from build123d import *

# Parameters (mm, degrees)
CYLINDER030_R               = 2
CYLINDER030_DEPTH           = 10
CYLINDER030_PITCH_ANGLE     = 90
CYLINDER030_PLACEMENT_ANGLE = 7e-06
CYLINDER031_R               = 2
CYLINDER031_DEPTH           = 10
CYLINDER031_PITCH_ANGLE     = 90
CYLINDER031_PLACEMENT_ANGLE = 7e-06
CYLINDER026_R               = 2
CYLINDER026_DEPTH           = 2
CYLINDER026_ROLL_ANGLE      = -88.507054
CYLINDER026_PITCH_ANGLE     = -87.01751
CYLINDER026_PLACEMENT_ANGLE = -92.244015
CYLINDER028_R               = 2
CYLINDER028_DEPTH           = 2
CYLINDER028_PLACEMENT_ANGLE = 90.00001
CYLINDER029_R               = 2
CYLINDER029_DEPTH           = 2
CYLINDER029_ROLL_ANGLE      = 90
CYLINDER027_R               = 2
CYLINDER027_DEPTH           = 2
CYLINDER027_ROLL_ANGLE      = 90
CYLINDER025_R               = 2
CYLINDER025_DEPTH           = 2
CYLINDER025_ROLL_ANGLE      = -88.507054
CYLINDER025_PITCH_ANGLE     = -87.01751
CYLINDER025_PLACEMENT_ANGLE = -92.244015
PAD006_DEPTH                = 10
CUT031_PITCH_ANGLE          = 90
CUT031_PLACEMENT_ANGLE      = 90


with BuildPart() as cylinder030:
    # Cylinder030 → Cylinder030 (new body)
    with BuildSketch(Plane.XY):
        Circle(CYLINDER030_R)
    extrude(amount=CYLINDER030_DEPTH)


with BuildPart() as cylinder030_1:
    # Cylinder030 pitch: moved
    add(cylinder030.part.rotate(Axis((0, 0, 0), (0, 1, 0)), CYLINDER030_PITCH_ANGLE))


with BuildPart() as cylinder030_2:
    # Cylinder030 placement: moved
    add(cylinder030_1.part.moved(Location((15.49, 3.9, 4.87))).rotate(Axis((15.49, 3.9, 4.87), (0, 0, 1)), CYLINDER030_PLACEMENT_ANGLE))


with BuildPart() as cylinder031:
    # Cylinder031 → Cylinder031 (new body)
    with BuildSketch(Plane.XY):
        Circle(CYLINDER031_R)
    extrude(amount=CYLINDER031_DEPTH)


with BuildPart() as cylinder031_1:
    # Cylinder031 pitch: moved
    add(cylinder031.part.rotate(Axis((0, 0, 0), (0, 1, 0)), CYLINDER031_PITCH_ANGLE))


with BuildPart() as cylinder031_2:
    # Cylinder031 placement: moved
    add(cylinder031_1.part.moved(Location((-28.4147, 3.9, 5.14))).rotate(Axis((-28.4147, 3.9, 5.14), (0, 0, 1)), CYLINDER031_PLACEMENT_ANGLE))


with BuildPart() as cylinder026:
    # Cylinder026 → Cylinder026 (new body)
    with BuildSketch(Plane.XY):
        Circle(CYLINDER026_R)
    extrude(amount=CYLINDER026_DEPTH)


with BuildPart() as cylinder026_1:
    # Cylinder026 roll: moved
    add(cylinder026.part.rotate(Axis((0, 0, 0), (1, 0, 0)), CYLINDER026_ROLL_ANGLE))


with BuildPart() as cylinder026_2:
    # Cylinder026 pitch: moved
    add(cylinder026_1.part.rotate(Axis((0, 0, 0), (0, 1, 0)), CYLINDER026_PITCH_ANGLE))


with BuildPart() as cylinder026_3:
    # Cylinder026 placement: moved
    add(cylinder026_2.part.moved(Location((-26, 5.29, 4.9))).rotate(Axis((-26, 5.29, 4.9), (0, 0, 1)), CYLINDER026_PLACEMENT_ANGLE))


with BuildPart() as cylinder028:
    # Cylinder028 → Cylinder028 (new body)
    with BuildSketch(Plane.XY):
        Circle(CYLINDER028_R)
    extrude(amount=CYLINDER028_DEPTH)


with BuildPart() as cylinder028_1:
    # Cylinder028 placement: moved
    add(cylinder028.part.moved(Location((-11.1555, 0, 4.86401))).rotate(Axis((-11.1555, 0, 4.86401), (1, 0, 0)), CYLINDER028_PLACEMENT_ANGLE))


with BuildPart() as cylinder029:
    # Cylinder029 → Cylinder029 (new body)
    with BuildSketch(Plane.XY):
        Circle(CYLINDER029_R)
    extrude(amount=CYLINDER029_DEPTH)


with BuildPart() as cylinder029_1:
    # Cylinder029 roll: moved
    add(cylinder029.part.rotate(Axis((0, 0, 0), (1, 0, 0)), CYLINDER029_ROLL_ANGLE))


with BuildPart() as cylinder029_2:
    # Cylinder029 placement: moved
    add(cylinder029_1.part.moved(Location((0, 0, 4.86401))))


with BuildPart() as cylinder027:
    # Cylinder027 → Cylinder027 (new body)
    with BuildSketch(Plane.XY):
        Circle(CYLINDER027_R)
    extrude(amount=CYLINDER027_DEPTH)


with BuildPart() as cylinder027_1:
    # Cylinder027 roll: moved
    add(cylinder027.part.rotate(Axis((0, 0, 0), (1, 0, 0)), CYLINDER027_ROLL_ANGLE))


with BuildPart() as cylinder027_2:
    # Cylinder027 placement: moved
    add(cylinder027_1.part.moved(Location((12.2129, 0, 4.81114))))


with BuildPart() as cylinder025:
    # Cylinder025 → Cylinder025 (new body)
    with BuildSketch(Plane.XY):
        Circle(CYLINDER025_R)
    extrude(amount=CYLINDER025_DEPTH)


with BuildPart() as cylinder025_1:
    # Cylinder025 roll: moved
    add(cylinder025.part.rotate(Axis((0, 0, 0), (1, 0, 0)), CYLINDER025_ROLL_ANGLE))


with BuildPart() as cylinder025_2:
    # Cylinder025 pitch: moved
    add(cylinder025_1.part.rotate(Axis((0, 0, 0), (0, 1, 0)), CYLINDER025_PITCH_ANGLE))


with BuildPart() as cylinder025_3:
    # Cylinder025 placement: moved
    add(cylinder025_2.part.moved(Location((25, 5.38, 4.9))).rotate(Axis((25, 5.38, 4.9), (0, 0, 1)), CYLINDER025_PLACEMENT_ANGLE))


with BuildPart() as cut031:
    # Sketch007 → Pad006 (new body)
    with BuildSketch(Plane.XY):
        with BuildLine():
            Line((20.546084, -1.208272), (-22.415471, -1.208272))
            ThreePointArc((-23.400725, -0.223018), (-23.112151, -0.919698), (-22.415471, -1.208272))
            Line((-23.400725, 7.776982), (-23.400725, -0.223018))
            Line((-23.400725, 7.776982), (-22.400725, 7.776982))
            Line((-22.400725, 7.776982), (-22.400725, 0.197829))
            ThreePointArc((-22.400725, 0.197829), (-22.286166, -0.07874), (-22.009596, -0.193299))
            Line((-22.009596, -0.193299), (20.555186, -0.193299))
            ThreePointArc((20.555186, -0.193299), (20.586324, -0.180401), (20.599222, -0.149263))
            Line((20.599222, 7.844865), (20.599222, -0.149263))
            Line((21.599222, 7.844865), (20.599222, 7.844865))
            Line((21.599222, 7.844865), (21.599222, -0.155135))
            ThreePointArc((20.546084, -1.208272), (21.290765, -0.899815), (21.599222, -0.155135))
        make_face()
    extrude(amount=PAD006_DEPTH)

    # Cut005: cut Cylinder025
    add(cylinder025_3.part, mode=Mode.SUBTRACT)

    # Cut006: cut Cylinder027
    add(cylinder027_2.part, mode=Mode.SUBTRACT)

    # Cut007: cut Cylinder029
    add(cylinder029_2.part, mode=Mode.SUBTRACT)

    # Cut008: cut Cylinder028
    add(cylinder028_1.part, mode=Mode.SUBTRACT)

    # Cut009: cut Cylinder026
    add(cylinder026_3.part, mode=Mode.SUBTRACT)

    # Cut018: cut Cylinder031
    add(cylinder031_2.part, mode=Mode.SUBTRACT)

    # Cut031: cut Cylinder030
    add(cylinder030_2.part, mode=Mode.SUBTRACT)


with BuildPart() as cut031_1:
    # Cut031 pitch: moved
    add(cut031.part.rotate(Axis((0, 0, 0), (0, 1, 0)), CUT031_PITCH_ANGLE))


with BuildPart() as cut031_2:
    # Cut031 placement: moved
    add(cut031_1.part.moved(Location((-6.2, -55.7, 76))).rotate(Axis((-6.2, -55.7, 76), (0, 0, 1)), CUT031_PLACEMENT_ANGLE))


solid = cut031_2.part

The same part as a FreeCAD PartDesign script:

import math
import FreeCAD as App
import Part
import Sketcher
Q = App.Units.Quantity

doc = App.newDocument("Part")
params = doc.addObject("Spreadsheet::Sheet", "Params")
for row, (alias, value) in enumerate([
    ("sketch1_diameter", "4 mm"),
    ("pad1_length", "10 mm"),
    ("sketch2_diameter", "4 mm"),
    ("pad2_length", "10 mm"),
    ("sketch3_diameter", "4 mm"),
    ("pad3_length", "2 mm"),
    ("sketch4_diameter", "4 mm"),
    ("pad4_length", "2 mm"),
    ("sketch5_diameter", "4 mm"),
    ("pad5_length", "2 mm"),
    ("sketch6_diameter", "4 mm"),
    ("pad6_length", "2 mm"),
    ("sketch7_diameter", "4 mm"),
    ("pad7_length", "2 mm"),
    ("sketch8_width", "1 mm"),
    ("sketch8_height", "8 mm"),
    ("pad8_length", "10 mm"),
], start=1):
    params.set(f"A{row}", alias)
    params.set(f"B{row}", "=" + value)
    params.setAlias(f"B{row}", alias)

body = doc.addObject("PartDesign::Body", "Body")

# Sketch on XY plane
sketch1 = doc.addObject("Sketcher::SketchObject", "Sketch")
body.addObject(sketch1)
sketch1.AttachmentSupport = (doc.XY_Plane, [""])
sketch1.MapMode = "FlatFace"
sketch1.addGeometry(Part.Circle(App.Vector(0, 0, 0), App.Vector(0, 0, 1), 2), False)
sketch1.addConstraint([
    Sketcher.Constraint("Coincident", 0, 3, -1, 1),
    Sketcher.Constraint("Diameter", 0, Q("4 mm")),
])
sketch1.setExpression("Constraints[1]", "Params.sketch1_diameter")
pad1 = doc.addObject("PartDesign::Pad", "Pad")
body.addObject(pad1)
pad1.Profile = sketch1
pad1.setExpression("Length", "Params.pad1_length")
body2 = doc.addObject("PartDesign::Body", "Body001")
doc.recompute()

body.Placement = App.Placement(App.Vector(0, 0, 0), App.Rotation(App.Vector(0, 1, 0), 90))
boolean = doc.addObject("PartDesign::Boolean", "Boolean")
body2.addObject(boolean)
boolean.Type = "Fuse"
boolean.addObjects([body])
body3 = doc.addObject("PartDesign::Body", "Body002")
doc.recompute()

body2.Placement = App.Placement(App.Vector(15.49, 3.9, 4.87), App.Rotation(App.Vector(0, 0, 1), 0.000007))
boolean2 = doc.addObject("PartDesign::Boolean", "Boolean001")
body3.addObject(boolean2)
boolean2.Type = "Fuse"
boolean2.addObjects([body2])
body4 = doc.addObject("PartDesign::Body", "Body003")

# Sketch on XY plane
sketch2 = doc.addObject("Sketcher::SketchObject", "Sketch001")
body4.addObject(sketch2)
sketch2.AttachmentSupport = (doc.getObject("XY_Plane003"), [""])
sketch2.MapMode = "FlatFace"
sketch2.addGeometry(Part.Circle(App.Vector(0, 0, 0), App.Vector(0, 0, 1), 2), False)
sketch2.addConstraint([
    Sketcher.Constraint("Coincident", 0, 3, -1, 1),
    Sketcher.Constraint("Diameter", 0, Q("4 mm")),
])
sketch2.setExpression("Constraints[1]", "Params.sketch2_diameter")
pad2 = doc.addObject("PartDesign::Pad", "Pad001")
body4.addObject(pad2)
pad2.Profile = sketch2
pad2.setExpression("Length", "Params.pad2_length")
body5 = doc.addObject("PartDesign::Body", "Body004")
doc.recompute()

body4.Placement = App.Placement(App.Vector(0, 0, 0), App.Rotation(App.Vector(0, 1, 0), 90))
boolean3 = doc.addObject("PartDesign::Boolean", "Boolean002")
body5.addObject(boolean3)
boolean3.Type = "Fuse"
boolean3.addObjects([body4])
body6 = doc.addObject("PartDesign::Body", "Body005")
doc.recompute()

body5.Placement = App.Placement(App.Vector(-28.4147, 3.9, 5.14), App.Rotation(App.Vector(0, 0, 1), 0.000007))
boolean4 = doc.addObject("PartDesign::Boolean", "Boolean003")
body6.addObject(boolean4)
boolean4.Type = "Fuse"
boolean4.addObjects([body5])
body7 = doc.addObject("PartDesign::Body", "Body006")

# Sketch on XY plane
sketch3 = doc.addObject("Sketcher::SketchObject", "Sketch002")
body7.addObject(sketch3)
sketch3.AttachmentSupport = (doc.getObject("XY_Plane006"), [""])
sketch3.MapMode = "FlatFace"
sketch3.addGeometry(Part.Circle(App.Vector(0, 0, 0), App.Vector(0, 0, 1), 2), False)
sketch3.addConstraint([
    Sketcher.Constraint("Coincident", 0, 3, -1, 1),
    Sketcher.Constraint("Diameter", 0, Q("4 mm")),
])
sketch3.setExpression("Constraints[1]", "Params.sketch3_diameter")
pad3 = doc.addObject("PartDesign::Pad", "Pad002")
body7.addObject(pad3)
pad3.Profile = sketch3
pad3.setExpression("Length", "Params.pad3_length")
body8 = doc.addObject("PartDesign::Body", "Body007")
doc.recompute()

body7.Placement = App.Placement(App.Vector(0, 0, 0), App.Rotation(App.Vector(1, 0, 0), 271.492946))
boolean5 = doc.addObject("PartDesign::Boolean", "Boolean004")
body8.addObject(boolean5)
boolean5.Type = "Fuse"
boolean5.addObjects([body7])
body9 = doc.addObject("PartDesign::Body", "Body008")
doc.recompute()

body8.Placement = App.Placement(App.Vector(0, 0, 0), App.Rotation(App.Vector(0, 1, 0), 272.98249))
boolean6 = doc.addObject("PartDesign::Boolean", "Boolean005")
body9.addObject(boolean6)
boolean6.Type = "Fuse"
boolean6.addObjects([body8])
body10 = doc.addObject("PartDesign::Body", "Body009")
doc.recompute()

body9.Placement = App.Placement(App.Vector(-26, 5.29, 4.9), App.Rotation(App.Vector(0, 0, 1), 267.755985))
boolean7 = doc.addObject("PartDesign::Boolean", "Boolean006")
body10.addObject(boolean7)
boolean7.Type = "Fuse"
boolean7.addObjects([body9])
body11 = doc.addObject("PartDesign::Body", "Body010")

# Sketch on XY plane
sketch4 = doc.addObject("Sketcher::SketchObject", "Sketch003")
body11.addObject(sketch4)
sketch4.AttachmentSupport = (doc.getObject("XY_Plane010"), [""])
sketch4.MapMode = "FlatFace"
sketch4.addGeometry(Part.Circle(App.Vector(0, 0, 0), App.Vector(0, 0, 1), 2), False)
sketch4.addConstraint([
    Sketcher.Constraint("Coincident", 0, 3, -1, 1),
    Sketcher.Constraint("Diameter", 0, Q("4 mm")),
])
sketch4.setExpression("Constraints[1]", "Params.sketch4_diameter")
pad4 = doc.addObject("PartDesign::Pad", "Pad003")
body11.addObject(pad4)
pad4.Profile = sketch4
pad4.setExpression("Length", "Params.pad4_length")
body12 = doc.addObject("PartDesign::Body", "Body011")
doc.recompute()

body11.Placement = App.Placement(App.Vector(-11.1555, 0, 4.86401), App.Rotation(App.Vector(1, 0, 0), 90.00001))
boolean8 = doc.addObject("PartDesign::Boolean", "Boolean007")
body12.addObject(boolean8)
boolean8.Type = "Fuse"
boolean8.addObjects([body11])
body13 = doc.addObject("PartDesign::Body", "Body012")

# Sketch on XY plane
sketch5 = doc.addObject("Sketcher::SketchObject", "Sketch004")
body13.addObject(sketch5)
sketch5.AttachmentSupport = (doc.getObject("XY_Plane012"), [""])
sketch5.MapMode = "FlatFace"
sketch5.addGeometry(Part.Circle(App.Vector(0, 0, 0), App.Vector(0, 0, 1), 2), False)
sketch5.addConstraint([
    Sketcher.Constraint("Coincident", 0, 3, -1, 1),
    Sketcher.Constraint("Diameter", 0, Q("4 mm")),
])
sketch5.setExpression("Constraints[1]", "Params.sketch5_diameter")
pad5 = doc.addObject("PartDesign::Pad", "Pad004")
body13.addObject(pad5)
pad5.Profile = sketch5
pad5.setExpression("Length", "Params.pad5_length")
body14 = doc.addObject("PartDesign::Body", "Body013")
doc.recompute()

body13.Placement = App.Placement(App.Vector(0, 0, 0), App.Rotation(App.Vector(1, 0, 0), 90))
boolean9 = doc.addObject("PartDesign::Boolean", "Boolean008")
body14.addObject(boolean9)
boolean9.Type = "Fuse"
boolean9.addObjects([body13])
body15 = doc.addObject("PartDesign::Body", "Body014")
doc.recompute()

body14.Placement = App.Placement(App.Vector(0, 0, 4.86401), App.Rotation(App.Vector(0, 0, 1), 0))
boolean10 = doc.addObject("PartDesign::Boolean", "Boolean009")
body15.addObject(boolean10)
boolean10.Type = "Fuse"
boolean10.addObjects([body14])
body16 = doc.addObject("PartDesign::Body", "Body015")

# Sketch on XY plane
sketch6 = doc.addObject("Sketcher::SketchObject", "Sketch005")
body16.addObject(sketch6)
sketch6.AttachmentSupport = (doc.getObject("XY_Plane015"), [""])
sketch6.MapMode = "FlatFace"
sketch6.addGeometry(Part.Circle(App.Vector(0, 0, 0), App.Vector(0, 0, 1), 2), False)
sketch6.addConstraint([
    Sketcher.Constraint("Coincident", 0, 3, -1, 1),
    Sketcher.Constraint("Diameter", 0, Q("4 mm")),
])
sketch6.setExpression("Constraints[1]", "Params.sketch6_diameter")
pad6 = doc.addObject("PartDesign::Pad", "Pad005")
body16.addObject(pad6)
pad6.Profile = sketch6
pad6.setExpression("Length", "Params.pad6_length")
body17 = doc.addObject("PartDesign::Body", "Body016")
doc.recompute()

body16.Placement = App.Placement(App.Vector(0, 0, 0), App.Rotation(App.Vector(1, 0, 0), 90))
boolean11 = doc.addObject("PartDesign::Boolean", "Boolean010")
body17.addObject(boolean11)
boolean11.Type = "Fuse"
boolean11.addObjects([body16])
body18 = doc.addObject("PartDesign::Body", "Body017")
doc.recompute()

body17.Placement = App.Placement(App.Vector(12.2129, 0, 4.81114), App.Rotation(App.Vector(0, 0, 1), 0))
boolean12 = doc.addObject("PartDesign::Boolean", "Boolean011")
body18.addObject(boolean12)
boolean12.Type = "Fuse"
boolean12.addObjects([body17])
body19 = doc.addObject("PartDesign::Body", "Body018")

# Sketch on XY plane
sketch7 = doc.addObject("Sketcher::SketchObject", "Sketch006")
body19.addObject(sketch7)
sketch7.AttachmentSupport = (doc.getObject("XY_Plane018"), [""])
sketch7.MapMode = "FlatFace"
sketch7.addGeometry(Part.Circle(App.Vector(0, 0, 0), App.Vector(0, 0, 1), 2), False)
sketch7.addConstraint([
    Sketcher.Constraint("Coincident", 0, 3, -1, 1),
    Sketcher.Constraint("Diameter", 0, Q("4 mm")),
])
sketch7.setExpression("Constraints[1]", "Params.sketch7_diameter")
pad7 = doc.addObject("PartDesign::Pad", "Pad006")
body19.addObject(pad7)
pad7.Profile = sketch7
pad7.setExpression("Length", "Params.pad7_length")
body20 = doc.addObject("PartDesign::Body", "Body019")
doc.recompute()

body19.Placement = App.Placement(App.Vector(0, 0, 0), App.Rotation(App.Vector(1, 0, 0), 271.492946))
boolean13 = doc.addObject("PartDesign::Boolean", "Boolean012")
body20.addObject(boolean13)
boolean13.Type = "Fuse"
boolean13.addObjects([body19])
body21 = doc.addObject("PartDesign::Body", "Body020")
doc.recompute()

body20.Placement = App.Placement(App.Vector(0, 0, 0), App.Rotation(App.Vector(0, 1, 0), 272.98249))
boolean14 = doc.addObject("PartDesign::Boolean", "Boolean013")
body21.addObject(boolean14)
boolean14.Type = "Fuse"
boolean14.addObjects([body20])
body22 = doc.addObject("PartDesign::Body", "Body021")
doc.recompute()

body21.Placement = App.Placement(App.Vector(25, 5.38, 4.9), App.Rotation(App.Vector(0, 0, 1), 267.755985))
boolean15 = doc.addObject("PartDesign::Boolean", "Boolean014")
body22.addObject(boolean15)
boolean15.Type = "Fuse"
boolean15.addObjects([body21])
body23 = doc.addObject("PartDesign::Body", "Body022")

# Sketch on XY plane
sketch8 = doc.addObject("Sketcher::SketchObject", "Sketch007")
body23.addObject(sketch8)
sketch8.AttachmentSupport = (doc.getObject("XY_Plane022"), [""])
sketch8.MapMode = "FlatFace"
sketch8.addGeometry([
    Part.LineSegment(App.Vector(-22.415471, -1.208272, 0), App.Vector(20.546084, -1.208272, 0)),  # 0
    Part.ArcOfCircle(Part.Circle(App.Vector(20.546084, -0.155134, 0), App.Vector(0, 0, 1), 1.053138), math.radians(-89.999996), math.radians(-0.000058)),  # 1
    Part.LineSegment(App.Vector(21.599222, -0.155135, 0), App.Vector(21.599222, 7.844865, 0)),  # 2
    Part.LineSegment(App.Vector(21.599222, 7.844865, 0), App.Vector(20.599222, 7.844865, 0)),  # 3
    Part.LineSegment(App.Vector(20.599222, 7.844865, 0), App.Vector(20.599222, -0.149263, 0)),  # 4
    Part.ArcOfCircle(Part.Circle(App.Vector(20.555185, -0.149262, 0), App.Vector(0, 0, 1), 0.044037), math.radians(-89.999314), math.radians(-0.000686)),  # 5
    Part.LineSegment(App.Vector(20.555186, -0.193299, 0), App.Vector(-22.009596, -0.193299, 0)),  # 6
    Part.ArcOfCircle(Part.Circle(App.Vector(-22.009596, 0.19783, 0), App.Vector(0, 0, 1), 0.391129), math.radians(-179.999869), math.radians(-89.999984)),  # 7
    Part.LineSegment(App.Vector(-22.400725, 0.197829, 0), App.Vector(-22.400725, 7.776982, 0)),  # 8
    Part.LineSegment(App.Vector(-22.400725, 7.776982, 0), App.Vector(-23.400725, 7.776982, 0)),  # 9
    Part.LineSegment(App.Vector(-23.400725, 7.776982, 0), App.Vector(-23.400725, -0.223018, 0)),  # 10
    Part.ArcOfCircle(Part.Circle(App.Vector(-22.415472, -0.223019, 0), App.Vector(0, 0, 1), 0.985253), math.radians(179.999957), math.radians(270.000043)),  # 11
], False)
sketch8.addConstraint([
    Sketcher.Constraint("Tangent", 0, 2, 1, 1),
    Sketcher.Constraint("Tangent", 1, 2, 2, 1),
    Sketcher.Constraint("Coincident", 2, 2, 3, 1),
    Sketcher.Constraint("Coincident", 3, 2, 4, 1),
    Sketcher.Constraint("Coincident", 4, 2, 5, 2),
    Sketcher.Constraint("Coincident", 5, 1, 6, 1),
    Sketcher.Constraint("Tangent", 6, 2, 7, 2),
    Sketcher.Constraint("Coincident", 7, 1, 8, 1),
    Sketcher.Constraint("Coincident", 8, 2, 9, 1),
    Sketcher.Constraint("Coincident", 9, 2, 10, 1),
    Sketcher.Constraint("Tangent", 10, 2, 11, 1),
    Sketcher.Constraint("Tangent", 11, 2, 0, 1),
    Sketcher.Constraint("Horizontal", 0),
    Sketcher.Constraint("Vertical", 2),
    Sketcher.Constraint("Horizontal", 3),
    Sketcher.Constraint("Vertical", 4),
    Sketcher.Constraint("Horizontal", 6),
    Sketcher.Constraint("Vertical", 8),
    Sketcher.Constraint("Horizontal", 9),
    Sketcher.Constraint("Vertical", 10),
    Sketcher.Constraint("Horizontal", 5, 3, 4, 2),
    Sketcher.Constraint("Equal", 3, 9),
    Sketcher.Constraint("Equal", 2, 10),
    Sketcher.Constraint("DistanceX", 3, 2, 3, 1, Q("1 mm")),
    Sketcher.Constraint("DistanceY", 2, 1, 2, 2, Q("8 mm")),
    Sketcher.Constraint("Radius", 1, Q("1.053138 mm")),
    Sketcher.Constraint("Radius", 7, Q("0.391129 mm")),
    Sketcher.Constraint("Radius", 5, Q("0.044037 mm")),
    Sketcher.Constraint("Radius", 11, Q("0.985253 mm")),
    Sketcher.Constraint("DistanceX", 6, 2, 6, 1, Q("42.564782 mm")),
    Sketcher.Constraint("DistanceY", 4, 2, 4, 1, Q("7.994128 mm")),
    Sketcher.Constraint("DistanceY", 5, 1, -1, 1, Q("0.193299 mm")),
    Sketcher.Constraint("DistanceX", 0, 2, 5, 1, Q("0.009102 mm")),
    Sketcher.Constraint("DistanceY", 11, 2, 7, 1, Q("1.406101 mm")),
    Sketcher.Constraint("DistanceX", 11, 3, -1, 1, Q("22.415472 mm")),
])
sketch8.setExpression("Constraints[23]", "Params.sketch8_width")
sketch8.setExpression("Constraints[24]", "Params.sketch8_height")
pad8 = doc.addObject("PartDesign::Pad", "Pad007")
body23.addObject(pad8)
pad8.Profile = sketch8
pad8.setExpression("Length", "Params.pad8_length")
doc.recompute()

boolean16 = doc.addObject("PartDesign::Boolean", "Boolean015")
body23.addObject(boolean16)
boolean16.Type = "Cut"
boolean16.addObjects([body22])
doc.recompute()

boolean17 = doc.addObject("PartDesign::Boolean", "Boolean016")
body23.addObject(boolean17)
boolean17.Type = "Cut"
boolean17.addObjects([body18])
doc.recompute()

boolean18 = doc.addObject("PartDesign::Boolean", "Boolean017")
body23.addObject(boolean18)
boolean18.Type = "Cut"
boolean18.addObjects([body15])
doc.recompute()

boolean19 = doc.addObject("PartDesign::Boolean", "Boolean018")
body23.addObject(boolean19)
boolean19.Type = "Cut"
boolean19.addObjects([body12])
doc.recompute()

boolean20 = doc.addObject("PartDesign::Boolean", "Boolean019")
body23.addObject(boolean20)
boolean20.Type = "Cut"
boolean20.addObjects([body10])
doc.recompute()

boolean21 = doc.addObject("PartDesign::Boolean", "Boolean020")
body23.addObject(boolean21)
boolean21.Type = "Cut"
boolean21.addObjects([body6])
doc.recompute()

boolean22 = doc.addObject("PartDesign::Boolean", "Boolean021")
body23.addObject(boolean22)
boolean22.Type = "Cut"
boolean22.addObjects([body3])
body24 = doc.addObject("PartDesign::Body", "Body023")
doc.recompute()

body23.Placement = App.Placement(App.Vector(0, 0, 0), App.Rotation(App.Vector(0, 1, 0), 90))
boolean23 = doc.addObject("PartDesign::Boolean", "Boolean022")
body24.addObject(boolean23)
boolean23.Type = "Fuse"
boolean23.addObjects([body23])
body25 = doc.addObject("PartDesign::Body", "Body024")
doc.recompute()

body24.Placement = App.Placement(App.Vector(-6.2, -55.7, 76), App.Rotation(App.Vector(0, 0, 1), 90))
boolean24 = doc.addObject("PartDesign::Boolean", "Boolean023")
body25.addObject(boolean24)
boolean24.Type = "Fuse"
boolean24.addObjects([body24])

doc.recompute()
